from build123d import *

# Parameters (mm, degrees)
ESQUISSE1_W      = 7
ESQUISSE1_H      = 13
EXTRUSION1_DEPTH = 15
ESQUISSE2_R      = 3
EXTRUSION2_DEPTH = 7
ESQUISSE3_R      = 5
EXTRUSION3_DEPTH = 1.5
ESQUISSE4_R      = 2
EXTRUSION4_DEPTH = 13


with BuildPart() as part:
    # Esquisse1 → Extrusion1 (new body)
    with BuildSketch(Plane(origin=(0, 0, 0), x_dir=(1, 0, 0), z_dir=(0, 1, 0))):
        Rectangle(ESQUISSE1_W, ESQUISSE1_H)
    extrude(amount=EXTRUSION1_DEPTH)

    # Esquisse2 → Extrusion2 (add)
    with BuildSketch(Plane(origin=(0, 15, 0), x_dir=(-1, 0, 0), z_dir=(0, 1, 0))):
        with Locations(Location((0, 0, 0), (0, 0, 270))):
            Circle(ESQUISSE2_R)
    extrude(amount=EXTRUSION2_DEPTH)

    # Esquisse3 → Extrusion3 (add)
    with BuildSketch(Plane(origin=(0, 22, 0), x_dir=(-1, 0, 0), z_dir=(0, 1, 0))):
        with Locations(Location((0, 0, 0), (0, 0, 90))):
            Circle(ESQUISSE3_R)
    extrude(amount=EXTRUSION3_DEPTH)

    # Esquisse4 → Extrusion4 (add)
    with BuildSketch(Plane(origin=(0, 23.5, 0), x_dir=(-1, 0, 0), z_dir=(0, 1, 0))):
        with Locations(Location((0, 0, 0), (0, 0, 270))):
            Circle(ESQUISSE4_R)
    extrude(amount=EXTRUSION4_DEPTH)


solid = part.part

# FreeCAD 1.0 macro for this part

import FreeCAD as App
import Part
import Sketcher


def add_polygon(sketch, points):
    """Adds a closed chain of lines whose ends are joined by coincident constraints."""
    first, n = sketch.GeometryCount, len(points)
    for a, b in zip(points, points[1:] + points[:1]):
        sketch.addGeometry(Part.LineSegment(App.Vector(*a, 0), App.Vector(*b, 0)), False)
    for i in range(n):
        sketch.addConstraint(Sketcher.Constraint("Coincident", first + i, 2, first + (i + 1) % n, 1))

doc = App.newDocument("Part")
body = doc.addObject("PartDesign::Body", "Body")

sketch1 = body.newObject("Sketcher::SketchObject", "Sketch")
sketch1.AttachmentSupport = (doc.getObject("XZ_Plane"), [""])
sketch1.MapMode = "FlatFace"
add_polygon(sketch1, [(-3.5, -6.5), (-3.5, 6.5), (3.5, 6.5), (3.5, -6.5)])
sketch1.addConstraint(Sketcher.Constraint("Vertical", 0))
sketch1.addConstraint(Sketcher.Constraint("Horizontal", 1))
sketch1.addConstraint(Sketcher.Constraint("Vertical", 2))
sketch1.addConstraint(Sketcher.Constraint("Horizontal", 3))
sketch1.addConstraint(Sketcher.Constraint("Symmetric", 0, 2, 2, 2, -1, 1))
sketch1.addConstraint(Sketcher.Constraint("DistanceX", 1, 1, 1, 2, 7.0))
sketch1.addConstraint(Sketcher.Constraint("DistanceY", 0, 1, 0, 2, 13.0))
pad1 = body.newObject("PartDesign::Pad", "Pad")
pad1.Profile = sketch1
pad1.Length = 15
pad1.Reversed = True

sketch2 = body.newObject("Sketcher::SketchObject", "Sketch001")
sketch2.AttachmentSupport = (doc.getObject("XZ_Plane"), [""])
sketch2.MapMode = "FlatFace"
sketch2.AttachmentOffset = App.Placement(App.Vector(0, 0, -15), App.Rotation())
sketch2.addGeometry(Part.Circle(App.Vector(0, 0, 0), App.Vector(0, 0, 1), 3), False)
sketch2.addConstraint(Sketcher.Constraint("Coincident", 0, 3, -1, 1))
sketch2.addConstraint(Sketcher.Constraint("Diameter", 0, 6.0))
pad2 = body.newObject("PartDesign::Pad", "Pad001")
pad2.Profile = sketch2
pad2.Length = 7
pad2.Reversed = True

sketch3 = body.newObject("Sketcher::SketchObject", "Sketch002")
sketch3.AttachmentSupport = (doc.getObject("XZ_Plane"), [""])
sketch3.MapMode = "FlatFace"
sketch3.AttachmentOffset = App.Placement(App.Vector(0, 0, -22), App.Rotation())
sketch3.addGeometry(Part.Circle(App.Vector(0, 0, 0), App.Vector(0, 0, 1), 5), False)
sketch3.addConstraint(Sketcher.Constraint("Coincident", 0, 3, -1, 1))
sketch3.addConstraint(Sketcher.Constraint("Diameter", 0, 10.0))
pad3 = body.newObject("PartDesign::Pad", "Pad002")
pad3.Profile = sketch3
pad3.Length = 1.5
pad3.Reversed = True

sketch4 = body.newObject("Sketcher::SketchObject", "Sketch003")
sketch4.AttachmentSupport = (doc.getObject("XZ_Plane"), [""])
sketch4.MapMode = "FlatFace"
sketch4.AttachmentOffset = App.Placement(App.Vector(0, 0, -23.5), App.Rotation())
sketch4.addGeometry(Part.Circle(App.Vector(0, 0, 0), App.Vector(0, 0, 1), 2), False)
sketch4.addConstraint(Sketcher.Constraint("Coincident", 0, 3, -1, 1))
sketch4.addConstraint(Sketcher.Constraint("Diameter", 0, 4.0))
pad4 = body.newObject("PartDesign::Pad", "Pad003")
pad4.Profile = sketch4
pad4.Length = 13
pad4.Reversed = True

doc.recompute()
